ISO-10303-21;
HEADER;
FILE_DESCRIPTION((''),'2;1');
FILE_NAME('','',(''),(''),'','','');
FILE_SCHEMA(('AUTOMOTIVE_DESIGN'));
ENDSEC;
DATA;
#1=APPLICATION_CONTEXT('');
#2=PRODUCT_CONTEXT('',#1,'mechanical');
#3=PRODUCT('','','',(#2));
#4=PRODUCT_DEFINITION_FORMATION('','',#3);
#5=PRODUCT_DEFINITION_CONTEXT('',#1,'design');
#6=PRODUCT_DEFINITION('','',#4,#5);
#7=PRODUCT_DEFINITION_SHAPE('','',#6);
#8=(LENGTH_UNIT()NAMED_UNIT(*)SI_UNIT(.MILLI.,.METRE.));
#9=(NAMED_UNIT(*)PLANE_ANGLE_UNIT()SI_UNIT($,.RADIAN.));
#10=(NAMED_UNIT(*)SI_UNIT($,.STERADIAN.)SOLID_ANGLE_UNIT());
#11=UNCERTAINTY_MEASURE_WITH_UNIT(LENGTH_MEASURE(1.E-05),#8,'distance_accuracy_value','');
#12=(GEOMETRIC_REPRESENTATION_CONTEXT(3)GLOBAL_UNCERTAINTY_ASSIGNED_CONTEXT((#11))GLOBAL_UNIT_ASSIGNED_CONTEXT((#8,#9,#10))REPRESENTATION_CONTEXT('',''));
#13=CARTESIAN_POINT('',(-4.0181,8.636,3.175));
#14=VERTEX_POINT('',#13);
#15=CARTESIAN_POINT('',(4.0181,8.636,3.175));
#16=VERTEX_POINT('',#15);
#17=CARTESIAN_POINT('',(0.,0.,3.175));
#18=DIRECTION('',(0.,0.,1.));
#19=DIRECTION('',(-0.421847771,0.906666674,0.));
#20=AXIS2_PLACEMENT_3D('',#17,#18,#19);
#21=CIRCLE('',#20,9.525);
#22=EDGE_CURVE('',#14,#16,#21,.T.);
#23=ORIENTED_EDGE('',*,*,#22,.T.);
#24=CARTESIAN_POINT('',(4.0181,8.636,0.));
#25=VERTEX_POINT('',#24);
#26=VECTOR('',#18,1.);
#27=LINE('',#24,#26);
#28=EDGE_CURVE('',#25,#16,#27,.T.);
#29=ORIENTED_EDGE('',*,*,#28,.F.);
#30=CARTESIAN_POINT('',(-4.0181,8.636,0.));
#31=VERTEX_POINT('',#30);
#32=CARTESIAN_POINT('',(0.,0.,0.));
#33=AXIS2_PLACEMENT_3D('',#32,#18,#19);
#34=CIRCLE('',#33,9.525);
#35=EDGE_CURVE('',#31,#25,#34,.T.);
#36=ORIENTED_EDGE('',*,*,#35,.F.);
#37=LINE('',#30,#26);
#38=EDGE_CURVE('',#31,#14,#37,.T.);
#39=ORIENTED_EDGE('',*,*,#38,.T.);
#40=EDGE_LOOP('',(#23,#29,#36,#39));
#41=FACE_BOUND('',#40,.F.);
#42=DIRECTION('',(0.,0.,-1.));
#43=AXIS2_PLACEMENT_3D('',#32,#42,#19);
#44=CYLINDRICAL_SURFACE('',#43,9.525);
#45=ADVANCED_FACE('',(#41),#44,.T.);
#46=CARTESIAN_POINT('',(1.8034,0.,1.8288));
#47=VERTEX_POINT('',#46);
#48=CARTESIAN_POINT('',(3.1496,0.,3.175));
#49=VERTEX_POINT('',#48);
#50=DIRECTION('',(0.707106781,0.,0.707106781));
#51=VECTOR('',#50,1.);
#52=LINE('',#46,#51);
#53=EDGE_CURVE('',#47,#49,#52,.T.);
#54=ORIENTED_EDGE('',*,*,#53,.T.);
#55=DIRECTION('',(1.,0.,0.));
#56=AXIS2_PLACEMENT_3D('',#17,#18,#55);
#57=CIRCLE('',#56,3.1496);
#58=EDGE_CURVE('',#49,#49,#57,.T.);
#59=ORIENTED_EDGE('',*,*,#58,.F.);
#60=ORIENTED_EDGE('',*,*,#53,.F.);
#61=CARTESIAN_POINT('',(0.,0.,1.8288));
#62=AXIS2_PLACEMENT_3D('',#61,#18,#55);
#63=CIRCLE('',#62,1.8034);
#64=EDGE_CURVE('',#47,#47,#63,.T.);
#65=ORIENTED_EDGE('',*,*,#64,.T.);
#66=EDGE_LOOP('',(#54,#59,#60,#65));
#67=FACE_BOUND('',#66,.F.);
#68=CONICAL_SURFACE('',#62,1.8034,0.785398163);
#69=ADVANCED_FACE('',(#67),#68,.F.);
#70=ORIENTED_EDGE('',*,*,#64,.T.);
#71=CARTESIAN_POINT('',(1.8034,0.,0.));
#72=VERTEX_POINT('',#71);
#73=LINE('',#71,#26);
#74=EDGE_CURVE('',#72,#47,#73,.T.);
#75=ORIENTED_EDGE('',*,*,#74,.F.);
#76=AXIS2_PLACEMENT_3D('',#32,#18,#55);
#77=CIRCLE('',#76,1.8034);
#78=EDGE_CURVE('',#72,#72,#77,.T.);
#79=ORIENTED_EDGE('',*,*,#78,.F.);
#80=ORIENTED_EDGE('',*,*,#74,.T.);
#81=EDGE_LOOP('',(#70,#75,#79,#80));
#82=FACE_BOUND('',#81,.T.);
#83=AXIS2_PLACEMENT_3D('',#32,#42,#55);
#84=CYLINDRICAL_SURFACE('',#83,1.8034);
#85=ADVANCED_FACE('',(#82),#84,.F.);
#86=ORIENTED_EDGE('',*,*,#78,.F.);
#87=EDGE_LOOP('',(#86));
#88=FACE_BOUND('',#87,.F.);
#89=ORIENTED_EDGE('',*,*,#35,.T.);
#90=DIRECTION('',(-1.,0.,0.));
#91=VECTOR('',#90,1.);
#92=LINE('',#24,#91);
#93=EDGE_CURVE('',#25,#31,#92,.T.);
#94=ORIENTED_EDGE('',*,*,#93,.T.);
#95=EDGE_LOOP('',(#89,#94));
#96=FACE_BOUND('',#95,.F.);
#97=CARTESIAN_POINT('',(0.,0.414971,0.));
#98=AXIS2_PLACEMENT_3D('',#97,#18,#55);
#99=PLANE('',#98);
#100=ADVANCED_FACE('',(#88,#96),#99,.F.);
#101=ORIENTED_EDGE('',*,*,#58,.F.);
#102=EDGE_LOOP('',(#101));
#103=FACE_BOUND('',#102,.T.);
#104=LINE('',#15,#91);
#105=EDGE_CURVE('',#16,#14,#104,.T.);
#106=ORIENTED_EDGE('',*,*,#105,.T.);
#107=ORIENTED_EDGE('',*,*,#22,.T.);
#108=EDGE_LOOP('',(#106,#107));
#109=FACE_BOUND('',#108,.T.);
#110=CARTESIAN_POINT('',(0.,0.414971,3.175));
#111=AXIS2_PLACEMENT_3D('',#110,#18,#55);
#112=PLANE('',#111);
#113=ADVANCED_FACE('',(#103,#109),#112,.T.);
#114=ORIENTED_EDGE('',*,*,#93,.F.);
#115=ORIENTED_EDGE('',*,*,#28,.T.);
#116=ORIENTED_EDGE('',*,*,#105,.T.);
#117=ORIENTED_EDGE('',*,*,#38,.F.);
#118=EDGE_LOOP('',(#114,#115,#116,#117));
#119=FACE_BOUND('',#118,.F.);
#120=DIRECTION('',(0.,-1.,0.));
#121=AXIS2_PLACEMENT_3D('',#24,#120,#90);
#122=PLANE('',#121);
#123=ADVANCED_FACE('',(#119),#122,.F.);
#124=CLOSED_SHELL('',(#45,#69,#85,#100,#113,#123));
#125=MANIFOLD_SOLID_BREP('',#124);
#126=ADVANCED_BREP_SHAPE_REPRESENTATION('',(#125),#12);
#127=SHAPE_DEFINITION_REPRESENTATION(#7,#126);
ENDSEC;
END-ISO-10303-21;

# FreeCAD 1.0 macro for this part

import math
import FreeCAD as App
import Part
import Sketcher
from FreeCAD import Vector
Q = App.Units.Quantity


def edges_at(feature, points):
    """Names of the edges that pass closest to the given points."""
    edges = feature.Shape.Edges
    near = lambda p: min(range(len(edges)), key=lambda i: edges[i].distToShape(Part.Vertex(*p))[0])
    return sorted({f"Edge{near(p) + 1}" for p in points})

doc = App.newDocument("Part")
body = doc.addObject("PartDesign::Body", "Body")

# Sketch on XY plane
sketch1 = body.newObject("Sketcher::SketchObject", "Sketch")
sketch1.AttachmentSupport = (doc.getObject("XY_Plane"), [""])
sketch1.MapMode = "FlatFace"
sketch1.addGeometry(Part.LineSegment(Vector(4, 8.6, 0), Vector(-4, 8.6, 0)), False)
sketch1.addGeometry(Part.ArcOfCircle(Part.Circle(Vector(0, 0, 0), Vector(0, 0, 1), 9.5), math.radians(115), math.radians(425)), False)
sketch1.addGeometry(Part.Circle(Vector(0, 0, 0), Vector(0, 0, 1), 1.8), False)
sketch1.addConstraint(Sketcher.Constraint("Coincident", 0, 1, 1, 2))
sketch1.addConstraint(Sketcher.Constraint("Coincident", 1, 1, 0, 2))
sketch1.addConstraint(Sketcher.Constraint("Horizontal", 0))
sketch1.addConstraint(Sketcher.Constraint("Coincident", 1, 3, -1, 1))
sketch1.addConstraint(Sketcher.Constraint("Coincident", 2, 3, -1, 1))
sketch1.addConstraint(Sketcher.Constraint("Diameter", 2, Q("0.142 in")))
sketch1.addConstraint(Sketcher.Constraint("Radius", 1, Q("0.375 in")))
sketch1.addConstraint(Sketcher.Constraint("DistanceY", -1, 1, 0, 1, Q("0.34 in")))
pad1 = body.newObject("PartDesign::Pad", "Pad")
pad1.Profile = sketch1
pad1.Length = Q("0.125 in")
doc.recompute()

chamfer = body.newObject("PartDesign::Chamfer", "Chamfer")
chamfer.Base = (pad1, edges_at(pad1, [(-1.803, 0, 3.175)]))
chamfer.ChamferType = "Two distances"
chamfer.Size = Q("0.053 in")
chamfer.Size2 = Q("0.053 in")

doc.recompute()
